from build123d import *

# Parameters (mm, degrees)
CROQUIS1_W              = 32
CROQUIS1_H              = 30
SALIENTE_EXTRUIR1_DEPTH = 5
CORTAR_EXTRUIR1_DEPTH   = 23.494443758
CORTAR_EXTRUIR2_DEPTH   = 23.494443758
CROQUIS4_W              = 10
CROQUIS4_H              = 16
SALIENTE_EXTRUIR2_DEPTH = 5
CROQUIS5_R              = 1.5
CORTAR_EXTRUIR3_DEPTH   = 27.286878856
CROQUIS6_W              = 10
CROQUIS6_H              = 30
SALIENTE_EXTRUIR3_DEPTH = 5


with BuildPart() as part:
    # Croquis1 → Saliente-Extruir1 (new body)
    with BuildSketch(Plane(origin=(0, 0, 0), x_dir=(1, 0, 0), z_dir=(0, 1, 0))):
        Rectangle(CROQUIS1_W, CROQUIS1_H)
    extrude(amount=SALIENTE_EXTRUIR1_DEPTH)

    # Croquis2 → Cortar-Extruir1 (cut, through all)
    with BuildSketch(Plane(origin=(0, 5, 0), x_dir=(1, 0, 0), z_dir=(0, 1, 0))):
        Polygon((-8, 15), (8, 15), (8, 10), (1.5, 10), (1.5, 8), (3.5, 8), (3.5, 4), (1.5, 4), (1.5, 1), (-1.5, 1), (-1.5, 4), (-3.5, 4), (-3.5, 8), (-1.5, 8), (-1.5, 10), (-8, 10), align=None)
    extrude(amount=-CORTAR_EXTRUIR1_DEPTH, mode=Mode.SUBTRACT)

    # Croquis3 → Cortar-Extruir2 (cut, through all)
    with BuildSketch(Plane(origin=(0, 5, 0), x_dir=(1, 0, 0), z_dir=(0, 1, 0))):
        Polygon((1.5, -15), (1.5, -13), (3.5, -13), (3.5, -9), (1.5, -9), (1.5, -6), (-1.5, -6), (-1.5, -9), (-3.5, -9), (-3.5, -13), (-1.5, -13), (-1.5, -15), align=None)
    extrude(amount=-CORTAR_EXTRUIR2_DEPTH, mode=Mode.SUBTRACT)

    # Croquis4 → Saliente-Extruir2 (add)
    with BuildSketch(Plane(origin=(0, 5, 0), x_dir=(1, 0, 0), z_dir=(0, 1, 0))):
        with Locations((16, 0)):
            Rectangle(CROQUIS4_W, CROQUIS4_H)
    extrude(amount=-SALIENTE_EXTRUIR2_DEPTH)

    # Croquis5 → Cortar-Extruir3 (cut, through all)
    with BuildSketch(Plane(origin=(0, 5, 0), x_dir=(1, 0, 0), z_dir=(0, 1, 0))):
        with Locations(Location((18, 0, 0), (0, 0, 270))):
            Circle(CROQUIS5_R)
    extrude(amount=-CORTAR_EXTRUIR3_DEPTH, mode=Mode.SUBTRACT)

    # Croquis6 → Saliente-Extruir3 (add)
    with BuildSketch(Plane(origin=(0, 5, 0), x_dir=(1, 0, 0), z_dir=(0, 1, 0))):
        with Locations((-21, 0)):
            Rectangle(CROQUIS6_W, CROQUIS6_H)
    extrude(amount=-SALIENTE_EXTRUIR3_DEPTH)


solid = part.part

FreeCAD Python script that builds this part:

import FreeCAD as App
import Part
import Sketcher

V = App.Vector


def add_polygon(sketch, points):
    """Adds a closed chain of lines whose ends are joined by coincident constraints."""
    first, n = sketch.GeometryCount, len(points)
    for a, b in zip(points, points[1:] + points[:1]):
        sketch.addGeometry(Part.LineSegment(App.Vector(*a, 0), App.Vector(*b, 0)), False)
    for i in range(n):
        sketch.addConstraint(Sketcher.Constraint("Coincident", first + i, 2, first + (i + 1) % n, 1))

doc = App.newDocument("Part")
body = doc.addObject("PartDesign::Body", "Body")

sketch1 = doc.addObject("Sketcher::SketchObject", "Sketch")
body.addObject(sketch1)
sketch1.AttachmentSupport = (doc.XZ_Plane, [""])
sketch1.MapMode = "FlatFace"
add_polygon(sketch1, [(-16, -15), (-16, 15), (16, 15), (16, -15)])
sketch1.addConstraint([
    Sketcher.Constraint("Vertical", 0),
    Sketcher.Constraint("Horizontal", 1),
    Sketcher.Constraint("Vertical", 2),
    Sketcher.Constraint("Horizontal", 3),
    Sketcher.Constraint("Symmetric", 0, 2, 2, 2, -1, 1),
    Sketcher.Constraint("DistanceX", 1, 1, 1, 2, 32.0),
    Sketcher.Constraint("DistanceY", 0, 1, 0, 2, 30.0),
])
pad1 = doc.addObject("PartDesign::Pad", "Pad")
body.addObject(pad1)
pad1.Profile = sketch1
pad1.Length = 5
pad1.Reversed = True

sketch2 = doc.addObject("Sketcher::SketchObject", "Sketch001")
body.addObject(sketch2)
sketch2.AttachmentSupport = (doc.XZ_Plane, [""])
sketch2.MapMode = "FlatFace"
sketch2.AttachmentOffset = App.Placement(V(0, 0, -5), App.Rotation())
add_polygon(sketch2, [(8, -15), (-8, -15), (-8, -10), (-1.5, -10), (-1.5, -8), (-3.5, -8), (-3.5, -4), (-1.5, -4), (-1.5, -1), (1.5, -1), (1.5, -4), (3.5, -4), (3.5, -8), (1.5, -8), (1.5, -10), (8, -10)])
sketch2.addConstraint([
    Sketcher.Constraint("Horizontal", 0),
    Sketcher.Constraint("Vertical", 1),
    Sketcher.Constraint("Horizontal", 2),
    Sketcher.Constraint("Vertical", 3),
    Sketcher.Constraint("Horizontal", 4),
    Sketcher.Constraint("Vertical", 5),
    Sketcher.Constraint("Horizontal", 6),
    Sketcher.Constraint("Vertical", 7),
    Sketcher.Constraint("Horizontal", 8),
    Sketcher.Constraint("Vertical", 9),
    Sketcher.Constraint("Horizontal", 10),
    Sketcher.Constraint("Vertical", 11),
    Sketcher.Constraint("Horizontal", 12),
    Sketcher.Constraint("Vertical", 13),
    Sketcher.Constraint("Horizontal", 14),
    Sketcher.Constraint("Vertical", 15),
    Sketcher.Constraint("Symmetric", 6, 2, 9, 2, -2),
    Sketcher.Constraint("Symmetric", 4, 2, 11, 2, -2),
    Sketcher.Constraint("Symmetric", 2, 2, 13, 2, -2),
    Sketcher.Constraint("Vertical", 3, 2, 6, 2),
    Sketcher.Constraint("Equal", 2, 14),
    Sketcher.Constraint("Equal", 12, 3),
    Sketcher.Constraint("Equal", 8, 7),
    Sketcher.Constraint("DistanceX", 0, 2, 0, 1, 16.0),
    Sketcher.Constraint("DistanceX", 4, 2, 4, 1, 2.0),
    Sketcher.Constraint("DistanceX", 8, 1, 8, 2, 3.0),
    Sketcher.Constraint("DistanceY", 1, 1, 1, 2, 5.0),
    Sketcher.Constraint("DistanceY", 5, 1, 5, 2, 4.0),
    Sketcher.Constraint("DistanceY", 0, 2, -1, 1, 15.0),
])
pocket1 = doc.addObject("PartDesign::Pocket", "Pocket")
body.addObject(pocket1)
pocket1.Profile = sketch2
pocket1.Type = "ThroughAll"
pocket1.Reversed = True

sketch3 = doc.addObject("Sketcher::SketchObject", "Sketch002")
body.addObject(sketch3)
sketch3.AttachmentSupport = (doc.XZ_Plane, [""])
sketch3.MapMode = "FlatFace"
sketch3.AttachmentOffset = App.Placement(V(0, 0, -5), App.Rotation())
add_polygon(sketch3, [(1.5, 15), (1.5, 13), (3.5, 13), (3.5, 9), (1.5, 9), (1.5, 6), (-1.5, 6), (-1.5, 9), (-3.5, 9), (-3.5, 13), (-1.5, 13), (-1.5, 15)])
sketch3.addConstraint([
    Sketcher.Constraint("Vertical", 0),
    Sketcher.Constraint("Horizontal", 1),
    Sketcher.Constraint("Vertical", 2),
    Sketcher.Constraint("Horizontal", 3),
    Sketcher.Constraint("Vertical", 4),
    Sketcher.Constraint("Horizontal", 5),
    Sketcher.Constraint("Vertical", 6),
    Sketcher.Constraint("Horizontal", 7),
    Sketcher.Constraint("Vertical", 8),
    Sketcher.Constraint("Horizontal", 9),
    Sketcher.Constraint("Vertical", 10),
    Sketcher.Constraint("Horizontal", 11),
    Sketcher.Constraint("Symmetric", 3, 2, 6, 2, -2),
    Sketcher.Constraint("Symmetric", 1, 2, 8, 2, -2),
    Sketcher.Constraint("Vertical", 0, 2, 3, 2),
    Sketcher.Constraint("Vertical", 6, 2, 9, 2),
    Sketcher.Constraint("Equal", 9, 0),
    Sketcher.Constraint("Equal", 11, 4),
    Sketcher.Constraint("DistanceX", 1, 1, 1, 2, 2.0),
    Sketcher.Constraint("DistanceX", 5, 2, 5, 1, 3.0),
    Sketcher.Constraint("DistanceY", 2, 2, 2, 1, 4.0),
    Sketcher.Constraint("DistanceY", -1, 1, 0, 2, 13.0),
])
pocket2 = doc.addObject("PartDesign::Pocket", "Pocket001")
body.addObject(pocket2)
pocket2.Profile = sketch3
pocket2.Type = "ThroughAll"
pocket2.Reversed = True

sketch4 = doc.addObject("Sketcher::SketchObject", "Sketch003")
body.addObject(sketch4)
sketch4.AttachmentSupport = (doc.XZ_Plane, [""])
sketch4.MapMode = "FlatFace"
sketch4.AttachmentOffset = App.Placement(V(0, 0, -5), App.Rotation())
add_polygon(sketch4, [(11, -8), (11, 8), (21, 8), (21, -8)])
sketch4.addConstraint([
    Sketcher.Constraint("Vertical", 0),
    Sketcher.Constraint("Horizontal", 1),
    Sketcher.Constraint("Vertical", 2),
    Sketcher.Constraint("Horizontal", 3),
    Sketcher.Constraint("DistanceX", 1, 1, 1, 2, 10.0),
    Sketcher.Constraint("DistanceY", 0, 1, 0, 2, 16.0),
    Sketcher.Constraint("DistanceX", -1, 1, 0, 2, 11.0),
    Sketcher.Constraint("DistanceY", -1, 1, 0, 2, 8.0),
])
pad2 = doc.addObject("PartDesign::Pad", "Pad001")
body.addObject(pad2)
pad2.Profile = sketch4
pad2.Length = 5

sketch5 = doc.addObject("Sketcher::SketchObject", "Sketch004")
body.addObject(sketch5)
sketch5.AttachmentSupport = (doc.XZ_Plane, [""])
sketch5.MapMode = "FlatFace"
sketch5.AttachmentOffset = App.Placement(V(0, 0, -5), App.Rotation())
sketch5.addGeometry(Part.Circle(V(18, 0, 0), V(0, 0, 1), 1.5), False)
sketch5.addConstraint([
    Sketcher.Constraint("PointOnObject", 0, 3, -1),
    Sketcher.Constraint("Diameter", 0, 3.0),
    Sketcher.Constraint("DistanceX", -1, 1, 0, 3, 18.0),
])
pocket3 = doc.addObject("PartDesign::Pocket", "Pocket002")
body.addObject(pocket3)
pocket3.Profile = sketch5
pocket3.Type = "ThroughAll"
pocket3.Reversed = True

sketch6 = doc.addObject("Sketcher::SketchObject", "Sketch005")
body.addObject(sketch6)
sketch6.AttachmentSupport = (doc.XZ_Plane, [""])
sketch6.MapMode = "FlatFace"
sketch6.AttachmentOffset = App.Placement(V(0, 0, -5), App.Rotation())
add_polygon(sketch6, [(-26, -15), (-26, 15), (-16, 15), (-16, -15)])
sketch6.addConstraint([
    Sketcher.Constraint("Vertical", 0),
    Sketcher.Constraint("Horizontal", 1),
    Sketcher.Constraint("Vertical", 2),
    Sketcher.Constraint("Horizontal", 3),
    Sketcher.Constraint("DistanceX", 1, 1, 1, 2, 10.0),
    Sketcher.Constraint("DistanceY", 0, 1, 0, 2, 30.0),
    Sketcher.Constraint("DistanceX", 0, 2, -1, 1, 26.0),
    Sketcher.Constraint("DistanceY", -1, 1, 0, 2, 15.0),
])
pad3 = doc.addObject("PartDesign::Pad", "Pad002")
body.addObject(pad3)
pad3.Profile = sketch6
pad3.Length = 5

doc.recompute()
